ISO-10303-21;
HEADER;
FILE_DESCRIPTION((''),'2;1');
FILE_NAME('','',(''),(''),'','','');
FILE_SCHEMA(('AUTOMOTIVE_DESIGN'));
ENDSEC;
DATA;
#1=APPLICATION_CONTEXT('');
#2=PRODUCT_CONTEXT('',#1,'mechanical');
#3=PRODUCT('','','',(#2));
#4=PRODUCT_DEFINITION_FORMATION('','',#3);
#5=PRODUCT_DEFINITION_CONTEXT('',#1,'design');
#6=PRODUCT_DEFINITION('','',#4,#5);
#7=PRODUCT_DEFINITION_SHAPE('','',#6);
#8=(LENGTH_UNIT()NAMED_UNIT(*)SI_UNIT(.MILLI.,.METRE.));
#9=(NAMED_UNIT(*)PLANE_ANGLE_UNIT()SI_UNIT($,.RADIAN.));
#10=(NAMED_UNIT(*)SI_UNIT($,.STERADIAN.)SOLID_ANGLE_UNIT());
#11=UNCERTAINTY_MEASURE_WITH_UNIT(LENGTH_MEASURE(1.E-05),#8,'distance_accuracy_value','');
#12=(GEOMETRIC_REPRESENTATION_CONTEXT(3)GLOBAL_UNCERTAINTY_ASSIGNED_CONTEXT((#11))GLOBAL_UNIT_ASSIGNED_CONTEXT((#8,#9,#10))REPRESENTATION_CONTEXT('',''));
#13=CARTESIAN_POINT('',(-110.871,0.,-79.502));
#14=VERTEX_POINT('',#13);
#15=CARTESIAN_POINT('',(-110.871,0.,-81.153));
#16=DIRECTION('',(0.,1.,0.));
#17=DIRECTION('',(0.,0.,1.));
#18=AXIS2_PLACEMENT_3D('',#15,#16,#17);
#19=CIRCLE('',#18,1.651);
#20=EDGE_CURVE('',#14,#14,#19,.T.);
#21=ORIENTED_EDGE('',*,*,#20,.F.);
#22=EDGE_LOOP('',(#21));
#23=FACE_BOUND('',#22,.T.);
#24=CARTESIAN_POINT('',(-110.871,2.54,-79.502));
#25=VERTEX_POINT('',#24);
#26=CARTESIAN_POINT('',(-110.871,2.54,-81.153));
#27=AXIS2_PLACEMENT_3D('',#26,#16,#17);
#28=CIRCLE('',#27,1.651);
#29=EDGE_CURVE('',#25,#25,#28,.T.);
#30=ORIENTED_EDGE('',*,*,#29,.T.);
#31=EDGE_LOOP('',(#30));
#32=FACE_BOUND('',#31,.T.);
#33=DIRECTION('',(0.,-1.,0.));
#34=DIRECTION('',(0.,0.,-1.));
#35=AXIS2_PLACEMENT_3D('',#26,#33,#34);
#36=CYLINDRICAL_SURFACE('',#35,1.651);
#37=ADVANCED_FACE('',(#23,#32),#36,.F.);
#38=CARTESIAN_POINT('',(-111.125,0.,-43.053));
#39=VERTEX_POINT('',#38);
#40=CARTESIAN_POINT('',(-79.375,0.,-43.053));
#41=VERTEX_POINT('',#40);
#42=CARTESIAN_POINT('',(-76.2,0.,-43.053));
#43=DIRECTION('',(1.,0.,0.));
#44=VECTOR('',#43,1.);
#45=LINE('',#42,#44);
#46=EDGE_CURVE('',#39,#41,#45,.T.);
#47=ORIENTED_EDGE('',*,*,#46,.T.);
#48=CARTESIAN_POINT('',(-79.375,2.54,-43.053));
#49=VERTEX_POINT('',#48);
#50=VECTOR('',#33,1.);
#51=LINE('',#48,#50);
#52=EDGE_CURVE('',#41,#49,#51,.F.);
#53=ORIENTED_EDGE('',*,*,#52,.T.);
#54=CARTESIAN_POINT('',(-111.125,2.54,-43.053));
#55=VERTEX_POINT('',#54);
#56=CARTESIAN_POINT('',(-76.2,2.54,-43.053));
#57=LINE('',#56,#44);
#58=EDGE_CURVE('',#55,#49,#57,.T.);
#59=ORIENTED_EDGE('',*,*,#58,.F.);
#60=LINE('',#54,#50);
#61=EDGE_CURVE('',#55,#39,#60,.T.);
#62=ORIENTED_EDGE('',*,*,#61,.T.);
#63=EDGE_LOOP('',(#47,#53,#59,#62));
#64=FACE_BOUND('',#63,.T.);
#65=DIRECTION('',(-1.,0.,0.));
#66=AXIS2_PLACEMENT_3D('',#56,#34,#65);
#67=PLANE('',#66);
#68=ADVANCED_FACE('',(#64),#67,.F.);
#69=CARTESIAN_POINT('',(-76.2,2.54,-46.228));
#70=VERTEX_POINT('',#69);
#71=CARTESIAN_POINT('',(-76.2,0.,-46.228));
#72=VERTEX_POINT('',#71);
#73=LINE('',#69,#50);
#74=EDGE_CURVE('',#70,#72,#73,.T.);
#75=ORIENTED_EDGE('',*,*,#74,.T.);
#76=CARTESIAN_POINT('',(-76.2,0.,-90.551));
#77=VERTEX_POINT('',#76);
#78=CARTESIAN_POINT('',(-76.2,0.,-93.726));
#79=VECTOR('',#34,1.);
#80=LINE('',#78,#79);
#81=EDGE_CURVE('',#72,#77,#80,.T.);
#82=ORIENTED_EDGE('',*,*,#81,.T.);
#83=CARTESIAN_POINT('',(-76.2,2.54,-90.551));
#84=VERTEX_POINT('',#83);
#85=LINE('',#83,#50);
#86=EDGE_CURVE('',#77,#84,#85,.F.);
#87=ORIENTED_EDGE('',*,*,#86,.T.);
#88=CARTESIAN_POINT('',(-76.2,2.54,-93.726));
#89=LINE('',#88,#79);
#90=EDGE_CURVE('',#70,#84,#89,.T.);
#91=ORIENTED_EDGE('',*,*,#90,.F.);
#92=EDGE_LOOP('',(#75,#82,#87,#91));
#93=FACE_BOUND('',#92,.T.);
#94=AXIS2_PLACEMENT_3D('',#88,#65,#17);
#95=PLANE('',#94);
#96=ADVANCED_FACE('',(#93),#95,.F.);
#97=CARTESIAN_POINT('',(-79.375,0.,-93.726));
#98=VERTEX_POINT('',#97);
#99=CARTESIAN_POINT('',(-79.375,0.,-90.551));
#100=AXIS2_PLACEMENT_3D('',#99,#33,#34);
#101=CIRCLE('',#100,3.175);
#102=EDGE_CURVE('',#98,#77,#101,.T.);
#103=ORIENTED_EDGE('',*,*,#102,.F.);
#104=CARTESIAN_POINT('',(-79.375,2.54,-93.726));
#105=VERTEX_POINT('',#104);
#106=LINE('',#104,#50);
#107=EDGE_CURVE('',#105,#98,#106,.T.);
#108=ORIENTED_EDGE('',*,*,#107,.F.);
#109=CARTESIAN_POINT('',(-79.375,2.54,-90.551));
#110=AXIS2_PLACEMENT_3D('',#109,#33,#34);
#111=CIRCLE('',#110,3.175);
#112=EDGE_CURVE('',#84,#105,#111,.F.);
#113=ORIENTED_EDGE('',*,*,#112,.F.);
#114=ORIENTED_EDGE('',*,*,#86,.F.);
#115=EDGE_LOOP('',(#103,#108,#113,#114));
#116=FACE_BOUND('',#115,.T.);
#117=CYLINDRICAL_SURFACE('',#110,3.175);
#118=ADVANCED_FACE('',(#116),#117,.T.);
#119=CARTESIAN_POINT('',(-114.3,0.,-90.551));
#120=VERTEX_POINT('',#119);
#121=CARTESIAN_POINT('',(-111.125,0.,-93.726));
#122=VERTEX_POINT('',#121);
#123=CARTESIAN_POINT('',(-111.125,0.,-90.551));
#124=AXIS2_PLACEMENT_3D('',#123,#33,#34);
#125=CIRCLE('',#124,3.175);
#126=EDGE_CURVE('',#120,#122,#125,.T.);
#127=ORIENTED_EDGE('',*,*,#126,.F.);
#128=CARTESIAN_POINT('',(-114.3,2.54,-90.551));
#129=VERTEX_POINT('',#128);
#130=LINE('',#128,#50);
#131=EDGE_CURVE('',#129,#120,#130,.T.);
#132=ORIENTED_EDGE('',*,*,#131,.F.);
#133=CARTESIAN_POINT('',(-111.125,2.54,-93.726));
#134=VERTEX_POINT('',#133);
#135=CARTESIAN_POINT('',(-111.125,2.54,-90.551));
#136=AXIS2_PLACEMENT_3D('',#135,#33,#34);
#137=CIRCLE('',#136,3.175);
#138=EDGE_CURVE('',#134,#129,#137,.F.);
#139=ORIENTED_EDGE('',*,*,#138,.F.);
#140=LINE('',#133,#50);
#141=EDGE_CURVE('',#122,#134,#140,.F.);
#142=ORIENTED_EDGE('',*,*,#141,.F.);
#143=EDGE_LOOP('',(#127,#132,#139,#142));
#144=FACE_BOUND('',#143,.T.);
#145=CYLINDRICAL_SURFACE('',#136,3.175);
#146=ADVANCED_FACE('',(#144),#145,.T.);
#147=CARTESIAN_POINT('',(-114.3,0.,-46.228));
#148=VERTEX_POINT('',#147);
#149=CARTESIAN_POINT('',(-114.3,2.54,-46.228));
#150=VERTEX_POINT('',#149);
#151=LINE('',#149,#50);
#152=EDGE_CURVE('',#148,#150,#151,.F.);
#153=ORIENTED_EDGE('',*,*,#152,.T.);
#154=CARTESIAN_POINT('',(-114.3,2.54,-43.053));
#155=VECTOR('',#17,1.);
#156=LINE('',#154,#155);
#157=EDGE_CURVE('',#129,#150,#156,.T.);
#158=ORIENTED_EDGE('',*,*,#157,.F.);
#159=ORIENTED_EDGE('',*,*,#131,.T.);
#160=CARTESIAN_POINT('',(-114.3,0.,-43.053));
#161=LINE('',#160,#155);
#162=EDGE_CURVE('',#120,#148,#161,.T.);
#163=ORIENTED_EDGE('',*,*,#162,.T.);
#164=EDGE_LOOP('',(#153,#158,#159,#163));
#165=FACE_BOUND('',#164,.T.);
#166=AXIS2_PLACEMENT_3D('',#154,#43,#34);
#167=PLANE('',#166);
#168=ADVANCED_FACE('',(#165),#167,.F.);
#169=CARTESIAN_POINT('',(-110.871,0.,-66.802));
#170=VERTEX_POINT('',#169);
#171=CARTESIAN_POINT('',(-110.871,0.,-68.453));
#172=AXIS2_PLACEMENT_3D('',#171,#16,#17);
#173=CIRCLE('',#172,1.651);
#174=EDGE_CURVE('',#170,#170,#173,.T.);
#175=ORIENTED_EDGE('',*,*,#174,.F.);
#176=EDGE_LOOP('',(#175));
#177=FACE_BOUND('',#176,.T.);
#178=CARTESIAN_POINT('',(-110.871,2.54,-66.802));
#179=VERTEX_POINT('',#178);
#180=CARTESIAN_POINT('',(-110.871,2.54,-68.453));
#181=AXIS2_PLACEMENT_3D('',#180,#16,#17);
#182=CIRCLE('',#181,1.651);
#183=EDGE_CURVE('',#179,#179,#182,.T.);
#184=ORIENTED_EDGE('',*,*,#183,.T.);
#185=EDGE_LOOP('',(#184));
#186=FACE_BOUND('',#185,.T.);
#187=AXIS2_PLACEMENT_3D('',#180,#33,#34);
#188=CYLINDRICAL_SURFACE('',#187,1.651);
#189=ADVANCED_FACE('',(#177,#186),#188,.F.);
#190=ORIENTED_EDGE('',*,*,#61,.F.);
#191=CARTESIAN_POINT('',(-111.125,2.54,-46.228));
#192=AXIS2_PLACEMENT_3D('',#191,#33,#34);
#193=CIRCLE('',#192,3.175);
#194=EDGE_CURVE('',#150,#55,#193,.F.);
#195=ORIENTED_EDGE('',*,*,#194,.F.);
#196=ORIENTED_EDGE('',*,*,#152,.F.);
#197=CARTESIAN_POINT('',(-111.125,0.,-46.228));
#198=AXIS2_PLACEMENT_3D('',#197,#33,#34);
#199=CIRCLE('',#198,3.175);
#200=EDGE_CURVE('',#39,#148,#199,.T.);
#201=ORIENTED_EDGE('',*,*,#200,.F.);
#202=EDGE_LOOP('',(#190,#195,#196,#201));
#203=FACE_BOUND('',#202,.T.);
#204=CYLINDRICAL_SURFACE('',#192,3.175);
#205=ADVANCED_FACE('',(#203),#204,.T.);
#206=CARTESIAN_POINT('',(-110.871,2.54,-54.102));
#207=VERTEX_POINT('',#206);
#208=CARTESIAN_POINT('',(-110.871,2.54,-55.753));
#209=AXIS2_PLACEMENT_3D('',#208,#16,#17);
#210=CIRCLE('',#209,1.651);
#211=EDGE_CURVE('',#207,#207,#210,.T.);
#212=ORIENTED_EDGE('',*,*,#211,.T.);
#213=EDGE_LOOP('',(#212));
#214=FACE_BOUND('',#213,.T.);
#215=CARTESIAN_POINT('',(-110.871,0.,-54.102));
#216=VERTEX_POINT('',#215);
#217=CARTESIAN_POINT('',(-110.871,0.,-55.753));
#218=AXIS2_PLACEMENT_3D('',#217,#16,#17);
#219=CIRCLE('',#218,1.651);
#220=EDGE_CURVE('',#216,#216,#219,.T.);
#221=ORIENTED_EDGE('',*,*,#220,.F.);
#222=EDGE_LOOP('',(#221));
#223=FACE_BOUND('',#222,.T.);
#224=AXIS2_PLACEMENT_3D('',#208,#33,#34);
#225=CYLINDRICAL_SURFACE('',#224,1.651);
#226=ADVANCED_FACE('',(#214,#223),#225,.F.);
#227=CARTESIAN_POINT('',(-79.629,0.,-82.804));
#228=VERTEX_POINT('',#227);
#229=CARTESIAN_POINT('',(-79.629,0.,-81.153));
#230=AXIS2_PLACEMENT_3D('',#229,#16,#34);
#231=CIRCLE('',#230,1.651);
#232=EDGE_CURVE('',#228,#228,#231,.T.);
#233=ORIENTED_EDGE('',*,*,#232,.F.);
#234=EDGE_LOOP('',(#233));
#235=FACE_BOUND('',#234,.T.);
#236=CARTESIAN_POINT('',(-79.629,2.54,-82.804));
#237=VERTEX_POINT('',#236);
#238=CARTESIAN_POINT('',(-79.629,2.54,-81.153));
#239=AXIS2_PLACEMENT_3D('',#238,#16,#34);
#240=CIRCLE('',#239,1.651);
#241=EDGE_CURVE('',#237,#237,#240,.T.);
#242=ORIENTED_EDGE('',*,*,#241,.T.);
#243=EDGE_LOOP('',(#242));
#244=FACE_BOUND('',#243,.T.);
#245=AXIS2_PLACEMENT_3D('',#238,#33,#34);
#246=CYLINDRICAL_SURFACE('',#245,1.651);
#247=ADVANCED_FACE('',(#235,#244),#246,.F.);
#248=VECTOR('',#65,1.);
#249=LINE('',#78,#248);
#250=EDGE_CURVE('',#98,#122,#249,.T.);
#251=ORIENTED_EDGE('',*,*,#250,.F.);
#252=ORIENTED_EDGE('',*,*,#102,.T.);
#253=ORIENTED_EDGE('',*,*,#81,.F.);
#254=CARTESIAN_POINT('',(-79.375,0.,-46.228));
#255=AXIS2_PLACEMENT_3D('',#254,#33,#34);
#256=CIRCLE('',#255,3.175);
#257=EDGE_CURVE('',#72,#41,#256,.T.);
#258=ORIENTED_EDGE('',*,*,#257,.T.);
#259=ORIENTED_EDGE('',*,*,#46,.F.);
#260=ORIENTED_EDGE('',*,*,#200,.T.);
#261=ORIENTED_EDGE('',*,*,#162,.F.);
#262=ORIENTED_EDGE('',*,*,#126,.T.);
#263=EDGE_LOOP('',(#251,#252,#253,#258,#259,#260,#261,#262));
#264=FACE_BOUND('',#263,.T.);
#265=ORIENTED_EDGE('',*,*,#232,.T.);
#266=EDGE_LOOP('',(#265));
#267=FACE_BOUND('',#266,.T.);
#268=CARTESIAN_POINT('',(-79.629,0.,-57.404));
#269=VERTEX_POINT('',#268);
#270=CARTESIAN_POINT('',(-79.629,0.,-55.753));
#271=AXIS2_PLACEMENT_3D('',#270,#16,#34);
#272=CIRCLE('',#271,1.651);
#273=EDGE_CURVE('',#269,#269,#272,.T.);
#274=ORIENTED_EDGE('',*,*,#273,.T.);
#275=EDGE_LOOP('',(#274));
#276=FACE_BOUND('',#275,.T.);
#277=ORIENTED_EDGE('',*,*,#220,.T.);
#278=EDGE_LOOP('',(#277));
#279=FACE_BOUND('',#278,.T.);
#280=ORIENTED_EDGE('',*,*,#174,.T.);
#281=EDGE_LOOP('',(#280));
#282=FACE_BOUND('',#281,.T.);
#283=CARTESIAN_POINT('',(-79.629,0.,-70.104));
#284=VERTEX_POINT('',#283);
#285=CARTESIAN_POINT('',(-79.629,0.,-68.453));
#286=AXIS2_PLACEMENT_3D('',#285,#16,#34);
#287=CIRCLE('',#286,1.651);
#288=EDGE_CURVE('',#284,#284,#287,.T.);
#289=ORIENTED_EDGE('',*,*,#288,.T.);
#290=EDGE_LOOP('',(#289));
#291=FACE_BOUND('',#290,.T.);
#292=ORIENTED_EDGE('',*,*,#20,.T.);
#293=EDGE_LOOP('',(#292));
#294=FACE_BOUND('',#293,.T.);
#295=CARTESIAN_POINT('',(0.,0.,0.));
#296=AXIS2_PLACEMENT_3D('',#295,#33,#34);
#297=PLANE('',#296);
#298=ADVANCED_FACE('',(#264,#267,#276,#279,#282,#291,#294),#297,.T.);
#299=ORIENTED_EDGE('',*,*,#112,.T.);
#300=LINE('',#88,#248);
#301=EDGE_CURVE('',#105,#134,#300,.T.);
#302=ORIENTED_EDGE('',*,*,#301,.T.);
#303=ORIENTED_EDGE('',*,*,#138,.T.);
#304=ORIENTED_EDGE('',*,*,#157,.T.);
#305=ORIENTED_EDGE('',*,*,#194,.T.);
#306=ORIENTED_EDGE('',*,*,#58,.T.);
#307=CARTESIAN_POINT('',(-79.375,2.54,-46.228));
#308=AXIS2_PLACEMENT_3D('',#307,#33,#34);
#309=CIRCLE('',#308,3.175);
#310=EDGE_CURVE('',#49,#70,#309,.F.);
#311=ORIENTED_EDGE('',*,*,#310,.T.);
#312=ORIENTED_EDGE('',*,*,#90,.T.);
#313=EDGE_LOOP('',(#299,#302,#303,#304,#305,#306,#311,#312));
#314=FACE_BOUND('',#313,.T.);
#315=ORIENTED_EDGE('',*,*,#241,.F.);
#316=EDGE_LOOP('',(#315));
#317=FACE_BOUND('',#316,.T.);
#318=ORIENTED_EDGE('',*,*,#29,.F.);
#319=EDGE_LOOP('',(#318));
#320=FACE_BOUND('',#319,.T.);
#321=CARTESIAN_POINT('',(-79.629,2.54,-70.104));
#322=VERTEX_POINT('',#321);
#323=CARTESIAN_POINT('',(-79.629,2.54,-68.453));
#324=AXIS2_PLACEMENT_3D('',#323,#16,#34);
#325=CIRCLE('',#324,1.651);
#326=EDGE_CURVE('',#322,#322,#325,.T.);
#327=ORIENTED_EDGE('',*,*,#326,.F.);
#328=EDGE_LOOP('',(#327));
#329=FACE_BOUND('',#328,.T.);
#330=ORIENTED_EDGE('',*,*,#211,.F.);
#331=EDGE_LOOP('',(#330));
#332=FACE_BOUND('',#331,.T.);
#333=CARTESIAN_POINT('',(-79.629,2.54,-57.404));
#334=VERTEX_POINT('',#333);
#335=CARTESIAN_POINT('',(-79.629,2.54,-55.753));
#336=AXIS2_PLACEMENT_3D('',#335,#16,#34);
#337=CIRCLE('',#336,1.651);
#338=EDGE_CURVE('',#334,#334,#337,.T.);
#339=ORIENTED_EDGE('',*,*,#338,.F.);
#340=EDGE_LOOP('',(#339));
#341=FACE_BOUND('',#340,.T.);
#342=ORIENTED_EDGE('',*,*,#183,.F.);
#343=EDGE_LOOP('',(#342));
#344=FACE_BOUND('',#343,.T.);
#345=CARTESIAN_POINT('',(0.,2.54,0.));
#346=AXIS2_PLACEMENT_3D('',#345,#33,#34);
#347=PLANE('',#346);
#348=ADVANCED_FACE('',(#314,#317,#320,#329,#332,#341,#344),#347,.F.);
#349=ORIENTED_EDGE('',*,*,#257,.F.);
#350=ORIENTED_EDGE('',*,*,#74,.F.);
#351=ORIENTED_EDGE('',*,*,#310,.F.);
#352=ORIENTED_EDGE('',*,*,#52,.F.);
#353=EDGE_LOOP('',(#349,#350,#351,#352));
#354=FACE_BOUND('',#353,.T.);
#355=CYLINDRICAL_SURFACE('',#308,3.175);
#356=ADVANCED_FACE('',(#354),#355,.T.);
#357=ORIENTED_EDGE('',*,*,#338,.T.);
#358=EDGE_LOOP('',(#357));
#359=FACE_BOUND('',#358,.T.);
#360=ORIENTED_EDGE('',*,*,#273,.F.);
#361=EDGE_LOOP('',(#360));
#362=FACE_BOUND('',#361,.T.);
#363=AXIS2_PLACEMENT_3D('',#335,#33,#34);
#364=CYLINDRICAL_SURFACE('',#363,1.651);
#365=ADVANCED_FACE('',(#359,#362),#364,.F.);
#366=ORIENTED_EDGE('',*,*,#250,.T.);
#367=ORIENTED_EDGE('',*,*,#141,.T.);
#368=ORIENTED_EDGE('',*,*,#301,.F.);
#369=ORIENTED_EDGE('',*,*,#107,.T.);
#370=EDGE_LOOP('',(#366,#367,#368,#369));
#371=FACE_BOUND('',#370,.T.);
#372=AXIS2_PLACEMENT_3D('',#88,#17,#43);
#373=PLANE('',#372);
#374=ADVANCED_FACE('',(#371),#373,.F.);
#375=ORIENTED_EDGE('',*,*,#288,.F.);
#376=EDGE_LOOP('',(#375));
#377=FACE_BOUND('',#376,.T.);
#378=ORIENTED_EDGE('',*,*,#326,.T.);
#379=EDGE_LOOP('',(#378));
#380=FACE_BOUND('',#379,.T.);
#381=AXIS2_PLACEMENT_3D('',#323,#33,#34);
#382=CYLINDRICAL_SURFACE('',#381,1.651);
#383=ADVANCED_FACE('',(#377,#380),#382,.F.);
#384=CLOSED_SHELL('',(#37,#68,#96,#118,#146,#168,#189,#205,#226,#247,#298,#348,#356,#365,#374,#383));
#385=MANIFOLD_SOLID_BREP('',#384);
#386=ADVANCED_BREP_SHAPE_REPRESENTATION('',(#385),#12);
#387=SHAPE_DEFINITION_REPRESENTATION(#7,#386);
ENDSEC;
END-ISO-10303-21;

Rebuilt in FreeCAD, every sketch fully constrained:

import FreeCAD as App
import Part
import Sketcher

V = App.Vector
Q = App.Units.Quantity


def edges_at(feature, points):
    """Names of the edges that pass closest to the given points."""
    edges = feature.Shape.Edges
    near = lambda p: min(range(len(edges)), key=lambda i: edges[i].distToShape(Part.Vertex(*p))[0])
    return sorted({f"Edge{near(p) + 1}" for p in points})

doc = App.newDocument("Part")
body = doc.addObject("PartDesign::Body", "Body")

sketch1 = doc.addObject("Sketcher::SketchObject", "Sketch")
body.addObject(sketch1)
sketch1.AttachmentSupport = (doc.XZ_Plane, [""])
sketch1.MapMode = "FlatFace"
sketch1.addGeometry([
    Part.LineSegment(V(-114.3, -93.726, 0), V(-114.3, -43.053, 0)),
    Part.LineSegment(V(-114.3, -43.053, 0), V(-76.2, -43.053, 0)),
    Part.LineSegment(V(-76.2, -43.053, 0), V(-76.2, -93.726, 0)),
    Part.LineSegment(V(-76.2, -93.726, 0), V(-114.3, -93.726, 0)),
    Part.Circle(V(-110.871, -55.753, 0), V(0, 0, 1), 1.651),
    Part.Circle(V(-79.629, -55.753, 0), V(0, 0, 1), 1.651),
    Part.Circle(V(-110.871, -68.453, 0), V(0, 0, 1), 1.651),
    Part.Circle(V(-110.871, -81.153, 0), V(0, 0, 1), 1.651),
    Part.Circle(V(-79.629, -68.453, 0), V(0, 0, 1), 1.651),
    Part.Circle(V(-79.629, -81.153, 0), V(0, 0, 1), 1.651),
], False)
sketch1.addConstraint([
    Sketcher.Constraint("Coincident", 0, 2, 1, 1),
    Sketcher.Constraint("Coincident", 1, 2, 2, 1),
    Sketcher.Constraint("Coincident", 2, 2, 3, 1),
    Sketcher.Constraint("Coincident", 3, 2, 0, 1),
    Sketcher.Constraint("Vertical", 0),
    Sketcher.Constraint("Horizontal", 1),
    Sketcher.Constraint("Vertical", 2),
    Sketcher.Constraint("Horizontal", 3),
    Sketcher.Constraint("Equal", 4, 5),
    Sketcher.Constraint("Equal", 5, 6),
    Sketcher.Constraint("Equal", 6, 7),
    Sketcher.Constraint("Equal", 7, 8),
    Sketcher.Constraint("Equal", 8, 9),
    Sketcher.Constraint("Horizontal", 4, 3, 5, 3),
    Sketcher.Constraint("Horizontal", 6, 3, 8, 3),
    Sketcher.Constraint("Horizontal", 7, 3, 9, 3),
    Sketcher.Constraint("Vertical", 4, 3, 6, 3),
    Sketcher.Constraint("Vertical", 6, 3, 7, 3),
    Sketcher.Constraint("Vertical", 5, 3, 8, 3),
    Sketcher.Constraint("Vertical", 8, 3, 9, 3),
    Sketcher.Constraint("Diameter", 4, Q("0.13 in")),
    Sketcher.Constraint("DistanceX", 1, 1, 1, 2, Q("1.5 in")),
    Sketcher.Constraint("DistanceX", 1, 2, -1, 1, Q("3 in")),
    Sketcher.Constraint("DistanceY", 7, 3, 4, 3, Q("1 in")),
    Sketcher.Constraint("DistanceY", 6, 3, 0, 2, Q("1 in")),
    Sketcher.Constraint("DistanceY", 6, 3, 4, 3, Q("0.5 in")),
    Sketcher.Constraint("DistanceY", 0, 1, 0, 2, Q("1.995 in")),
    Sketcher.Constraint("DistanceY", 2, 2, -1, 1, Q("3.69 in")),
    Sketcher.Constraint("DistanceX", 4, 3, 5, 3, Q("1.23 in")),
    Sketcher.Constraint("DistanceX", 4, 3, -1, 1, Q("4.365 in")),
])
pad1 = doc.addObject("PartDesign::Pad", "Pad")
body.addObject(pad1)
pad1.Profile = sketch1
pad1.Length = Q("0.1 in")
pad1.Reversed = True
doc.recompute()

fillet = doc.addObject("PartDesign::Fillet", "Fillet")
body.addObject(fillet)
fillet.Base = (pad1, edges_at(pad1, [
    (-76.2, 1.27, -43.053),
    (-114.3, 1.27, -43.053),
    (-114.3, 1.27, -93.726),
    (-76.2, 1.27, -93.726),
]))
fillet.Radius = Q("0.125 in")

doc.recompute()
